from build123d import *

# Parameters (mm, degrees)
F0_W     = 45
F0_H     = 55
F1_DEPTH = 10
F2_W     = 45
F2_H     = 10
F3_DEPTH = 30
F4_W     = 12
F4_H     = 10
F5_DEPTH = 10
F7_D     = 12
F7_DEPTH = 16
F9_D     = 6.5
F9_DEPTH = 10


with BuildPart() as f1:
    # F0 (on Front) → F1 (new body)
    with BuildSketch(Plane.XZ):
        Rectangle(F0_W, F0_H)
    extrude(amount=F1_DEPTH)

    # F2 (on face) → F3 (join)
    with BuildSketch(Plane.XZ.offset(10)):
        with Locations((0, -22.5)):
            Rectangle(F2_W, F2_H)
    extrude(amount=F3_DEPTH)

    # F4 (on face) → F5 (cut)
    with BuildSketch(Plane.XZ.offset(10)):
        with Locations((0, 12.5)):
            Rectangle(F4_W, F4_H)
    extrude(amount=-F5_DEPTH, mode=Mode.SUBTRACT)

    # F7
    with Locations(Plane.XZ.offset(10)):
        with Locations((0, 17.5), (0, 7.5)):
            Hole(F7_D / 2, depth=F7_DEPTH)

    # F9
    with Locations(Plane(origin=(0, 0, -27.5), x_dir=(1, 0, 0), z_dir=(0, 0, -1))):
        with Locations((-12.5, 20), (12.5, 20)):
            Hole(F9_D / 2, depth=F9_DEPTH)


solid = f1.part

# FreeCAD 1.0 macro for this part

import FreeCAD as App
import Part
import Sketcher


def add_polygon(sketch, points):
    """Adds a closed chain of lines whose ends are joined by coincident constraints."""
    first, n = sketch.GeometryCount, len(points)
    for a, b in zip(points, points[1:] + points[:1]):
        sketch.addGeometry(Part.LineSegment(App.Vector(*a, 0), App.Vector(*b, 0)), False)
    for i in range(n):
        sketch.addConstraint(Sketcher.Constraint("Coincident", first + i, 2, first + (i + 1) % n, 1))

doc = App.newDocument("Part")
body = doc.addObject("PartDesign::Body", "Body")

sketch1 = body.newObject("Sketcher::SketchObject", "Sketch")
sketch1.AttachmentSupport = (doc.getObject("XZ_Plane"), [""])
sketch1.MapMode = "FlatFace"
add_polygon(sketch1, [(-22, 28), (-22, -28), (22, -28), (22, 28)])
sketch1.addConstraint(Sketcher.Constraint("Vertical", 0))
sketch1.addConstraint(Sketcher.Constraint("Horizontal", 1))
sketch1.addConstraint(Sketcher.Constraint("Vertical", 2))
sketch1.addConstraint(Sketcher.Constraint("Horizontal", 3))
sketch1.addConstraint(Sketcher.Constraint("Symmetric", 0, 2, 2, 2, -1, 1))
sketch1.addConstraint(Sketcher.Constraint("DistanceX", 1, 1, 1, 2, 45.0))
sketch1.addConstraint(Sketcher.Constraint("DistanceY", 0, 2, 0, 1, 55.0))
pad1 = body.newObject("PartDesign::Pad", "Pad")
pad1.Profile = sketch1
pad1.Length = 10

sketch2 = body.newObject("Sketcher::SketchObject", "Sketch001")
sketch2.AttachmentSupport = (doc.getObject("XZ_Plane"), [""])
sketch2.MapMode = "FlatFace"
sketch2.AttachmentOffset = App.Placement(App.Vector(0, 0, 10), App.Rotation())
add_polygon(sketch2, [(-22, -18), (-22, -28), (22, -28), (22, -18)])
sketch2.addConstraint(Sketcher.Constraint("Vertical", 0))
sketch2.addConstraint(Sketcher.Constraint("Horizontal", 1))
sketch2.addConstraint(Sketcher.Constraint("Vertical", 2))
sketch2.addConstraint(Sketcher.Constraint("Horizontal", 3))
sketch2.addConstraint(Sketcher.Constraint("DistanceX", 1, 1, 1, 2, 45.0))
sketch2.addConstraint(Sketcher.Constraint("DistanceY", 0, 2, 0, 1, 10.0))
sketch2.addConstraint(Sketcher.Constraint("DistanceX", 0, 2, -1, 1, 22.5))
sketch2.addConstraint(Sketcher.Constraint("DistanceY", 0, 2, -1, 1, 27.5))
pad2 = body.newObject("PartDesign::Pad", "Pad001")
pad2.Profile = sketch2
pad2.Length = 30

sketch3 = body.newObject("Sketcher::SketchObject", "Sketch002")
sketch3.AttachmentSupport = (doc.getObject("XZ_Plane"), [""])
sketch3.MapMode = "FlatFace"
sketch3.AttachmentOffset = App.Placement(App.Vector(0, 0, 10), App.Rotation())
add_polygon(sketch3, [(-6, 18), (-6, 8), (6, 8), (6, 18)])
sketch3.addConstraint(Sketcher.Constraint("Vertical", 0))
sketch3.addConstraint(Sketcher.Constraint("Horizontal", 1))
sketch3.addConstraint(Sketcher.Constraint("Vertical", 2))
sketch3.addConstraint(Sketcher.Constraint("Horizontal", 3))
sketch3.addConstraint(Sketcher.Constraint("DistanceX", 1, 1, 1, 2, 12.0))
sketch3.addConstraint(Sketcher.Constraint("DistanceY", 0, 2, 0, 1, 10.0))
sketch3.addConstraint(Sketcher.Constraint("DistanceX", 0, 2, -1, 1, 6.0))
sketch3.addConstraint(Sketcher.Constraint("DistanceY", -1, 1, 0, 2, 7.5))
pocket1 = body.newObject("PartDesign::Pocket", "Pocket")
pocket1.Profile = sketch3
pocket1.Length = 10

sketch4 = body.newObject("Sketcher::SketchObject", "Sketch003")
sketch4.AttachmentSupport = (doc.getObject("XZ_Plane"), [""])
sketch4.MapMode = "FlatFace"
sketch4.AttachmentOffset = App.Placement(App.Vector(0, 0, 10), App.Rotation())
sketch4.addGeometry(Part.Circle(App.Vector(0, 18, 0), App.Vector(0, 0, 1), 6), False)
sketch4.addGeometry(Part.Circle(App.Vector(0, 8, 0), App.Vector(0, 0, 1), 6), False)
sketch4.addConstraint(Sketcher.Constraint("Equal", 0, 1))
sketch4.addConstraint(Sketcher.Constraint("PointOnObject", 0, 3, -2))
sketch4.addConstraint(Sketcher.Constraint("PointOnObject", 1, 3, -2))
sketch4.addConstraint(Sketcher.Constraint("Diameter", 0, 12.0))
sketch4.addConstraint(Sketcher.Constraint("DistanceY", 1, 3, 0, 3, 10.0))
sketch4.addConstraint(Sketcher.Constraint("DistanceY", -1, 1, 0, 3, 17.5))
doc.recompute()
hole = body.newObject("PartDesign::Hole", "Hole")
hole.Profile = sketch4
hole.ThreadType = "None"
hole.Diameter = 12
hole.DepthType = "Dimension"
hole.Depth = 16
hole.DrillPoint = "Flat"

sketch5 = body.newObject("Sketcher::SketchObject", "Sketch004")
sketch5.AttachmentSupport = (doc.getObject("XY_Plane"), [""])
sketch5.MapMode = "FlatFace"
sketch5.AttachmentOffset = App.Placement(App.Vector(0, 0, -27.5), App.Rotation())
sketch5.addGeometry(Part.Circle(App.Vector(-12.5, -20, 0), App.Vector(0, 0, 1), 3.2), False)
sketch5.addGeometry(Part.Circle(App.Vector(12.5, -20, 0), App.Vector(0, 0, 1), 3.2), False)
sketch5.addConstraint(Sketcher.Constraint("Equal", 0, 1))
sketch5.addConstraint(Sketcher.Constraint("Symmetric", 0, 3, 1, 3, -2))
sketch5.addConstraint(Sketcher.Constraint("Diameter", 0, 6.5))
sketch5.addConstraint(Sketcher.Constraint("DistanceY", 0, 3, -1, 1, 20.0))
sketch5.addConstraint(Sketcher.Constraint("DistanceX", 0, 3, 1, 3, 25.0))
doc.recompute()
hole2 = body.newObject("PartDesign::Hole", "Hole001")
hole2.Profile = sketch5
hole2.ThreadType = "None"
hole2.Diameter = 6.5
hole2.DepthType = "Dimension"
hole2.Depth = 10
hole2.DrillPoint = "Flat"
hole2.Reversed = True

doc.recompute()
